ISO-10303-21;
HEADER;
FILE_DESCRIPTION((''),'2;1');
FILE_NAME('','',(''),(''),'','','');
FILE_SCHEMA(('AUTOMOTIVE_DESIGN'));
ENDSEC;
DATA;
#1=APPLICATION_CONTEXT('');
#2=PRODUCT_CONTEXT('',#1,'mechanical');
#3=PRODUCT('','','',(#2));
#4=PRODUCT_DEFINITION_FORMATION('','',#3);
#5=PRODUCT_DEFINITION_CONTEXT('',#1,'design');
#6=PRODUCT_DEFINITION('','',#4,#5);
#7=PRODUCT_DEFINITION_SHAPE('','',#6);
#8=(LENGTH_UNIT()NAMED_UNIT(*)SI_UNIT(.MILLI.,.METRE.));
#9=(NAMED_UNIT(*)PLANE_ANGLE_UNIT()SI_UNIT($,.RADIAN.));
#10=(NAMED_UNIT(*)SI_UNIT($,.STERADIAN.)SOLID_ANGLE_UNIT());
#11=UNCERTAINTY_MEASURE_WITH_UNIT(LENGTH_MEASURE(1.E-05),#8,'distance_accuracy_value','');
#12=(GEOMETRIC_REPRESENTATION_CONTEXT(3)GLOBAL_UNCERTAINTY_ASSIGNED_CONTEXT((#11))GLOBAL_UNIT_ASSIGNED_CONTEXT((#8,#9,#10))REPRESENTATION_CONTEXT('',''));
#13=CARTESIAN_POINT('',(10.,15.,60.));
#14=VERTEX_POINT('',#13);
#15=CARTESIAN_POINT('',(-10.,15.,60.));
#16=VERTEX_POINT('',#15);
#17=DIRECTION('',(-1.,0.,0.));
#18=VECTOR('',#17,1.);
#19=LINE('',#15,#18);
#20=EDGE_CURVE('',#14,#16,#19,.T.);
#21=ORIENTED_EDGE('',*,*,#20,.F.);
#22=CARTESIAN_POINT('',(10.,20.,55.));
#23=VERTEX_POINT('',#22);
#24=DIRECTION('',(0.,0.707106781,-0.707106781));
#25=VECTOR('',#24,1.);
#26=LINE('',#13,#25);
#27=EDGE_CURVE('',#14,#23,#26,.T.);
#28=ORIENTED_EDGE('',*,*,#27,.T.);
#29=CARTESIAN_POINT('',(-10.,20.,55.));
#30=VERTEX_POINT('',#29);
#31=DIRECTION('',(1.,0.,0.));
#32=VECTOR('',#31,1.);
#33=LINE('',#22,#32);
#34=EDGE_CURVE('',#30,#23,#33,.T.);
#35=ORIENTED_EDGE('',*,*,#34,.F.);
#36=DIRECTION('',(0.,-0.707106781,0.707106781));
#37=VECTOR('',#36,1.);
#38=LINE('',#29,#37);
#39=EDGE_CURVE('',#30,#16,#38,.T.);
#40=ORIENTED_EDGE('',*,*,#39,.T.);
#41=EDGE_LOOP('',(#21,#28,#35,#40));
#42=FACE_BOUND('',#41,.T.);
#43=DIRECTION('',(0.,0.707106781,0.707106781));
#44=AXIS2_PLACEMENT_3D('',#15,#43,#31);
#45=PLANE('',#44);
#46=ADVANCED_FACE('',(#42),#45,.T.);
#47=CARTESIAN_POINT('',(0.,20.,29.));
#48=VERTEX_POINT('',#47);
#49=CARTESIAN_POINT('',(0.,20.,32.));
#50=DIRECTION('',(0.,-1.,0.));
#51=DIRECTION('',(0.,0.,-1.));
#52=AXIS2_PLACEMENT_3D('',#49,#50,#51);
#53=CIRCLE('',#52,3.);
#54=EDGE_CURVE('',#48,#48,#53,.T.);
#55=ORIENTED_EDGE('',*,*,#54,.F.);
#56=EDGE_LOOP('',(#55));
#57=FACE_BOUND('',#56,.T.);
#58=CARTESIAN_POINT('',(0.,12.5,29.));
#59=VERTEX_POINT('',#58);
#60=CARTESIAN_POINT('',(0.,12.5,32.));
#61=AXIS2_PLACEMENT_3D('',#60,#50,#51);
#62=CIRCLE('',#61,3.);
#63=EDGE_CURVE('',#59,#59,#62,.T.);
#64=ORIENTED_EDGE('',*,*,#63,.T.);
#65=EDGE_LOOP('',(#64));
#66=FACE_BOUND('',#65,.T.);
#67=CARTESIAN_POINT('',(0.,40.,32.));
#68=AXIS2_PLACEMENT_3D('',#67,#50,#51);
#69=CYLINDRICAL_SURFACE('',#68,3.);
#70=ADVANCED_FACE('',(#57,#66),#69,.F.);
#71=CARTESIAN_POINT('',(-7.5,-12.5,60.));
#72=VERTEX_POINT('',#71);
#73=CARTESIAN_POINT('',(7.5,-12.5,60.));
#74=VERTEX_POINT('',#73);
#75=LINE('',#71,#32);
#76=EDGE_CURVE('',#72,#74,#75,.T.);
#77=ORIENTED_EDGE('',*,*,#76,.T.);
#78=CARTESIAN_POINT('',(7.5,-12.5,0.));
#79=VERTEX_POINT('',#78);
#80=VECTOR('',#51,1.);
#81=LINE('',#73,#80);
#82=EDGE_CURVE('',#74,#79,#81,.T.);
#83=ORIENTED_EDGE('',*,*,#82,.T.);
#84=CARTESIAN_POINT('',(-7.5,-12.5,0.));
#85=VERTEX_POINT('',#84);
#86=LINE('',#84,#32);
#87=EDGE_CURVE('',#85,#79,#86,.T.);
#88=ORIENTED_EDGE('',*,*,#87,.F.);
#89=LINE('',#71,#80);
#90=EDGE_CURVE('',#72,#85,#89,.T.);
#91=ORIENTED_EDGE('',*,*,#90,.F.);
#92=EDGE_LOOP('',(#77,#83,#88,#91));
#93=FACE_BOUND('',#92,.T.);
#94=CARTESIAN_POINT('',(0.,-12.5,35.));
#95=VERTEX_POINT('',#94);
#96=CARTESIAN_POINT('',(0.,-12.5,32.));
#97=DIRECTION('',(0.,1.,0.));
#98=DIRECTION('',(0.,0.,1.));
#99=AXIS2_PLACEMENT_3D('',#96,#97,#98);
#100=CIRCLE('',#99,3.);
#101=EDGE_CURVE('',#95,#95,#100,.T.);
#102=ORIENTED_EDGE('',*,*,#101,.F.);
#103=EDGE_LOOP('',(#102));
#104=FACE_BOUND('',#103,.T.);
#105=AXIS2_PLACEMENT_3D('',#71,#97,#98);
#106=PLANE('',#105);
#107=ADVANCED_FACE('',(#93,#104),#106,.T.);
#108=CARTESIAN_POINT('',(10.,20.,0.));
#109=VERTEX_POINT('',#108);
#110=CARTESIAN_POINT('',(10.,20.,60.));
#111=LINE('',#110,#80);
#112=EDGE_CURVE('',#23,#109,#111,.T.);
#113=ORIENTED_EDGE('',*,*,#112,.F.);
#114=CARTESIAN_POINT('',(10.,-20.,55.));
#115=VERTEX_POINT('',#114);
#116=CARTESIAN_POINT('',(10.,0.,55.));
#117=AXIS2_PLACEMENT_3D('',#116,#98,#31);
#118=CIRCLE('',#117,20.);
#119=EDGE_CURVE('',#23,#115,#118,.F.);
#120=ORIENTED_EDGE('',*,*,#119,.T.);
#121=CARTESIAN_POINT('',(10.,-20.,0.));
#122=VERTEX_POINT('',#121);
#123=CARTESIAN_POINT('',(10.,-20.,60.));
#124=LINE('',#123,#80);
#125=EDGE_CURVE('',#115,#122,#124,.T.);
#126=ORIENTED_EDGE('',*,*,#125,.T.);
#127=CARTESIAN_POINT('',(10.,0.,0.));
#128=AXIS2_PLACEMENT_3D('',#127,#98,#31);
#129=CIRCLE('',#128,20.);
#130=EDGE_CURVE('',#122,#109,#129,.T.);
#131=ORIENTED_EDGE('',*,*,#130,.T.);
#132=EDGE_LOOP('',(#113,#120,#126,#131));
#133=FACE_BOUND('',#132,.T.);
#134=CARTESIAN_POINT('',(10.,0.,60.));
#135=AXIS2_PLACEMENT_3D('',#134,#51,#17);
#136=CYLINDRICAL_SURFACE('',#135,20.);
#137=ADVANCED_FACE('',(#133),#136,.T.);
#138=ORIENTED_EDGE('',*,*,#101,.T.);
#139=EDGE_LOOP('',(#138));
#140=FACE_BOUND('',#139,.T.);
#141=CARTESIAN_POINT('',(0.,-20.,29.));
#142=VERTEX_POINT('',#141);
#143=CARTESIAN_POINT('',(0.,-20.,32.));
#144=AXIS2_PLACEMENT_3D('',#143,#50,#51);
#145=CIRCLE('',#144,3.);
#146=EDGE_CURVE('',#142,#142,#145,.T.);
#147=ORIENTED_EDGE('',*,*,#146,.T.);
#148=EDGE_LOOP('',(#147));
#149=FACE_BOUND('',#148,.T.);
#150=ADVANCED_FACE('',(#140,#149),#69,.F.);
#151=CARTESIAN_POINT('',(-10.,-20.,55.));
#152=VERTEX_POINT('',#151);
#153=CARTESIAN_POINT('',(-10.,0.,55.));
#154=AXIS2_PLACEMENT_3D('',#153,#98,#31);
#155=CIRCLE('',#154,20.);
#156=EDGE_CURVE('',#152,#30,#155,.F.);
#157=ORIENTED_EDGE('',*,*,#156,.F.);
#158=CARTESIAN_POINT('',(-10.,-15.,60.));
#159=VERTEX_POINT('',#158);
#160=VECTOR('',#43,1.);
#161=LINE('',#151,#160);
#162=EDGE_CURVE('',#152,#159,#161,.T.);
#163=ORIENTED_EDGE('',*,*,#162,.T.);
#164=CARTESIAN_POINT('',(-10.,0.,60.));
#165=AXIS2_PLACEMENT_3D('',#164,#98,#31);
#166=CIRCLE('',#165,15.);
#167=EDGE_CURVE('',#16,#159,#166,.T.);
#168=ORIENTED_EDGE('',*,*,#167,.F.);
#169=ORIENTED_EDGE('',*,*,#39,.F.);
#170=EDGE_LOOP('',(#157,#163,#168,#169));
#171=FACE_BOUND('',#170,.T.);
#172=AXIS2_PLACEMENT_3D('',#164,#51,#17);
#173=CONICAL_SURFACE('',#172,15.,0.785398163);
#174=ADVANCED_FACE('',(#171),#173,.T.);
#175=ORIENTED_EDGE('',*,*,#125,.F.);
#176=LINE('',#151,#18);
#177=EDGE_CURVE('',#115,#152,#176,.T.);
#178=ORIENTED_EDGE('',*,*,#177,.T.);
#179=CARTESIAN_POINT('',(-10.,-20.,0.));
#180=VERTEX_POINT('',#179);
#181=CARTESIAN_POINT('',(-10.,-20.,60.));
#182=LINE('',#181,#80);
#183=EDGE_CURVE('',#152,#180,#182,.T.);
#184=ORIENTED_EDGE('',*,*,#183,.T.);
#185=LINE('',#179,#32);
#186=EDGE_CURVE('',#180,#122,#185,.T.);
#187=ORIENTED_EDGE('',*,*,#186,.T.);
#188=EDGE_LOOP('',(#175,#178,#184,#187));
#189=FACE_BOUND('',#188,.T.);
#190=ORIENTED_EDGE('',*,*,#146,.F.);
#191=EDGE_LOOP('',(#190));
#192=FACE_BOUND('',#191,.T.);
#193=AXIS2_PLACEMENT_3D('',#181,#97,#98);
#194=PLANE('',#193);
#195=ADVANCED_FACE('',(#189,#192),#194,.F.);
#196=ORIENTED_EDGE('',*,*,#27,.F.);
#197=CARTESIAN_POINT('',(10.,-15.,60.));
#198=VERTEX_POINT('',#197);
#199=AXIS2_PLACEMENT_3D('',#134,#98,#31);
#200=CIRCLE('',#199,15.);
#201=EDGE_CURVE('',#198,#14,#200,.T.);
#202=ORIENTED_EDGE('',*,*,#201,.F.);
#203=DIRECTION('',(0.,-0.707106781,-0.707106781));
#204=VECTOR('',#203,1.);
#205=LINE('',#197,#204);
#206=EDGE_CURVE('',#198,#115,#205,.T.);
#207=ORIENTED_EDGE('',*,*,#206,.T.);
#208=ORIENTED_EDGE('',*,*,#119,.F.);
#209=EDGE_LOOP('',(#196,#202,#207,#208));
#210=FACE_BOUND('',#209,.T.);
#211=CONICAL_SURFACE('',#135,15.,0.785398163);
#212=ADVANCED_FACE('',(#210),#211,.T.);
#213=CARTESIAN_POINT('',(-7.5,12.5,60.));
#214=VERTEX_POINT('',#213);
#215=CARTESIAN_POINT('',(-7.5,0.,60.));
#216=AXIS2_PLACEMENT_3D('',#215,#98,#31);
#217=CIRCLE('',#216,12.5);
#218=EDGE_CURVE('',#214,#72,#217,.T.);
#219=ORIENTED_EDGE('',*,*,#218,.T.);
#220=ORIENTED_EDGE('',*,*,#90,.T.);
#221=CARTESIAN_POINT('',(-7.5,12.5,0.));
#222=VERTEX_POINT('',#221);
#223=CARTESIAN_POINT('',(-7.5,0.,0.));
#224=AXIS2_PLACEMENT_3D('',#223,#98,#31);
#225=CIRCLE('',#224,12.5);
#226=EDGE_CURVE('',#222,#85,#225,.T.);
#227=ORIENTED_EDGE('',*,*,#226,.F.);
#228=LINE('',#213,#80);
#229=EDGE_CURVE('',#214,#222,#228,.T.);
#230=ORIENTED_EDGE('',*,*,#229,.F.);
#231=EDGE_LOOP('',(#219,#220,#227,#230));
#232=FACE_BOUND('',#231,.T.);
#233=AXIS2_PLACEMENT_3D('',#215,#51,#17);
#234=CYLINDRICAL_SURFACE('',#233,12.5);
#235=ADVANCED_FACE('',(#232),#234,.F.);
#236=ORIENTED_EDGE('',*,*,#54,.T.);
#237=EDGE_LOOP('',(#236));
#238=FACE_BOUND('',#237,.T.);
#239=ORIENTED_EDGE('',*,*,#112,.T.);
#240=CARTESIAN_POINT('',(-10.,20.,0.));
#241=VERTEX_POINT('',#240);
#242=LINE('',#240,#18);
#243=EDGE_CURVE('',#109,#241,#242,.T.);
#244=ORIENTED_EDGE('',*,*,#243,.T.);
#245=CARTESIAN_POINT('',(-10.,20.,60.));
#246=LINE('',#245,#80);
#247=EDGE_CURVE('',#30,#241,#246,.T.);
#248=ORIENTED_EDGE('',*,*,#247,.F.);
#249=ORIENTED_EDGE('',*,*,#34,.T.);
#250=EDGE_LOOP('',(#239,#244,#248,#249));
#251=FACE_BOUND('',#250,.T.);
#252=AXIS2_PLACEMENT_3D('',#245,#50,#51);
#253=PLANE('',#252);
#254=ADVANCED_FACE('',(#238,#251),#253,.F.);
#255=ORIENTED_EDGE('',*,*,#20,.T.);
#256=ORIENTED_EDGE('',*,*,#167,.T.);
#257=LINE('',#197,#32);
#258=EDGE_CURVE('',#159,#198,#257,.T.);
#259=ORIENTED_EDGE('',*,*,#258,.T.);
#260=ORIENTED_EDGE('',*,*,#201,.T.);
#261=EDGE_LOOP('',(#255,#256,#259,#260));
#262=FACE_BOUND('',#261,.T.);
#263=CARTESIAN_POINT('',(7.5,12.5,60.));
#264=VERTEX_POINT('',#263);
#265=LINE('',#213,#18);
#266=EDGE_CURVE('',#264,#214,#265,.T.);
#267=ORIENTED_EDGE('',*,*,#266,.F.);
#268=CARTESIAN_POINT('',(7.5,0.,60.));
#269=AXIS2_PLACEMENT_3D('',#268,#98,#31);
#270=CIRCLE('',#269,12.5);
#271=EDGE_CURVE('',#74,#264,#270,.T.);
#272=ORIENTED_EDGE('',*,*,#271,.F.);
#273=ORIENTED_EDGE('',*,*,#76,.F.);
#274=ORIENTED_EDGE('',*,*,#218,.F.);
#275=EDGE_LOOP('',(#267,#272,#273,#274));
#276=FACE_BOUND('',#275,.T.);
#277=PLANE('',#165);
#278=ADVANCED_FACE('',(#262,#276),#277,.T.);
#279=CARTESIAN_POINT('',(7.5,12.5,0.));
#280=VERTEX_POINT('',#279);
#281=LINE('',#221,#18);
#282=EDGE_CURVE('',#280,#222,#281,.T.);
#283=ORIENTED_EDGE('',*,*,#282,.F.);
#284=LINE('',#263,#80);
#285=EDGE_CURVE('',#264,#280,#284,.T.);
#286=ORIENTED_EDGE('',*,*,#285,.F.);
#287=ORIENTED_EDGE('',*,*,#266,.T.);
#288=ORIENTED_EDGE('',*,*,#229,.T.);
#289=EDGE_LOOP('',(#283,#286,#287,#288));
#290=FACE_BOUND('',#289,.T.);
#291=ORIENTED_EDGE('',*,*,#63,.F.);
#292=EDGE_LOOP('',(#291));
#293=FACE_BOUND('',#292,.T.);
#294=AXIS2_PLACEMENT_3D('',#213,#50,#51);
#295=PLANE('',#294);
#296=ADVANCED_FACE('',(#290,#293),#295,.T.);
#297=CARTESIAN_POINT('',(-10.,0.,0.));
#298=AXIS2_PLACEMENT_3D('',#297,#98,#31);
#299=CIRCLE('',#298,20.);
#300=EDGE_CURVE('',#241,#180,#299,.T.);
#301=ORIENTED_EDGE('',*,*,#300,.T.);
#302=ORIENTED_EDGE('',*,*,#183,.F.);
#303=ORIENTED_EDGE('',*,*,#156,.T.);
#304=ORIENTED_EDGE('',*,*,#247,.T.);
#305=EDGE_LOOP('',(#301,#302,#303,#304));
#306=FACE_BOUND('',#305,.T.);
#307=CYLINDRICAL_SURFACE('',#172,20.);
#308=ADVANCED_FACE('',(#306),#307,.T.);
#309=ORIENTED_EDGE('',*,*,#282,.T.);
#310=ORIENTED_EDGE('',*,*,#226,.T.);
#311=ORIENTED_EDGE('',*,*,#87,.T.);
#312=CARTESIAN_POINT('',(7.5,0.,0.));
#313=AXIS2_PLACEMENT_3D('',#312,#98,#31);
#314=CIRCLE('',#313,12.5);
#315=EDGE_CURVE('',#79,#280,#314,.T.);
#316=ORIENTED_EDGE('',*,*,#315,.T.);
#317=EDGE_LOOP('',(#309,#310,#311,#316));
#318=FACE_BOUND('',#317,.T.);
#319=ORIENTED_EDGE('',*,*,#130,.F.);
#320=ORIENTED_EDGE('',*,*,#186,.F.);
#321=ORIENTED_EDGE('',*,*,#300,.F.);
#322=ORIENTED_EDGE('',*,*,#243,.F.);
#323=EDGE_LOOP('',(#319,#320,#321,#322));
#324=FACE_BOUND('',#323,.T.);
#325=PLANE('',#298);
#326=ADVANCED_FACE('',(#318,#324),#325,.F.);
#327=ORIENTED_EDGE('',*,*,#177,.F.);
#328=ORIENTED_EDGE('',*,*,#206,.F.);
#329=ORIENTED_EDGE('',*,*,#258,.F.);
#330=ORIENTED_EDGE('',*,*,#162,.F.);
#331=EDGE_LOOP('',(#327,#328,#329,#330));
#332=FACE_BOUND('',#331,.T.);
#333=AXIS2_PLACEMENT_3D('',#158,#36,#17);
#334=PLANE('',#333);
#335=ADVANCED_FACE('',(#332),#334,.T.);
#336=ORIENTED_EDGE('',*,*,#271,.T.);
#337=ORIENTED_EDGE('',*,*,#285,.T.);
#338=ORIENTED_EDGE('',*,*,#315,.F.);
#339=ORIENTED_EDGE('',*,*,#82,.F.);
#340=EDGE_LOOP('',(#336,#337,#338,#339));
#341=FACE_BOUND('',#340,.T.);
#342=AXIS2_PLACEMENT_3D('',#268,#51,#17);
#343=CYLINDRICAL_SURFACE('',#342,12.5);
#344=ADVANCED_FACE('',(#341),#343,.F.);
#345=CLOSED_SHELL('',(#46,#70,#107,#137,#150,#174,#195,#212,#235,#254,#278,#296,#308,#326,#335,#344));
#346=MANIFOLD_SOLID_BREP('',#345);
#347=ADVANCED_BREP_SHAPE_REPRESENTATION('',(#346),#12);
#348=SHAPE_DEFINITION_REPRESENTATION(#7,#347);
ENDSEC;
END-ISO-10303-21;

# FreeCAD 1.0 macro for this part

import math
import FreeCAD as App
import Part
import Sketcher
Q = App.Units.Quantity


def edges_at(feature, points):
    """Names of the edges that pass closest to the given points."""
    edges = feature.Shape.Edges
    near = lambda p: min(range(len(edges)), key=lambda i: edges[i].distToShape(Part.Vertex(*p))[0])
    return sorted({f"Edge{near(p) + 1}" for p in points})

doc = App.newDocument("Part")
body = doc.addObject("PartDesign::Body", "Body")

# Sketch on XY plane
sketch1 = doc.addObject("Sketcher::SketchObject", "Sketch")
body.addObject(sketch1)
sketch1.AttachmentSupport = (doc.XY_Plane, [""])
sketch1.MapMode = "FlatFace"
sketch1.addGeometry(Part.LineSegment(App.Vector(10, 20, 0), App.Vector(-10, 20, 0)), False)
sketch1.addGeometry(Part.ArcOfCircle(Part.Circle(App.Vector(-10, 0, 0), App.Vector(0, 0, 1), 20), math.radians(90), math.radians(270)), False)
sketch1.addGeometry(Part.LineSegment(App.Vector(-10, -20, 0), App.Vector(10, -20, 0)), False)
sketch1.addGeometry(Part.ArcOfCircle(Part.Circle(App.Vector(10, 0, 0), App.Vector(0, 0, 1), 20), math.radians(-90), math.radians(90)), False)
sketch1.addGeometry(Part.LineSegment(App.Vector(-8, 12, 0), App.Vector(8, 12, 0)), False)
sketch1.addGeometry(Part.ArcOfCircle(Part.Circle(App.Vector(8, 0, 0), App.Vector(0, 0, 1), 12), math.radians(-90), math.radians(90)), False)
sketch1.addGeometry(Part.LineSegment(App.Vector(8, -12, 0), App.Vector(-8, -12, 0)), False)
sketch1.addGeometry(Part.ArcOfCircle(Part.Circle(App.Vector(-8, 0, 0), App.Vector(0, 0, 1), 12), math.radians(90), math.radians(270)), False)
sketch1.addConstraint(Sketcher.Constraint("Tangent", 0, 2, 1, 1))
sketch1.addConstraint(Sketcher.Constraint("Tangent", 1, 2, 2, 1))
sketch1.addConstraint(Sketcher.Constraint("Tangent", 2, 2, 3, 1))
sketch1.addConstraint(Sketcher.Constraint("Tangent", 3, 2, 0, 1))
sketch1.addConstraint(Sketcher.Constraint("Tangent", 4, 2, 5, 2))
sketch1.addConstraint(Sketcher.Constraint("Tangent", 5, 1, 6, 1))
sketch1.addConstraint(Sketcher.Constraint("Tangent", 6, 2, 7, 2))
sketch1.addConstraint(Sketcher.Constraint("Tangent", 7, 1, 4, 1))
sketch1.addConstraint(Sketcher.Constraint("Horizontal", 0))
sketch1.addConstraint(Sketcher.Constraint("Horizontal", 2))
sketch1.addConstraint(Sketcher.Constraint("Horizontal", 4))
sketch1.addConstraint(Sketcher.Constraint("Horizontal", 6))
sketch1.addConstraint(Sketcher.Constraint("Symmetric", 1, 3, 3, 3, -1, 1))
sketch1.addConstraint(Sketcher.Constraint("Symmetric", 5, 3, 7, 3, -1, 1))
sketch1.addConstraint(Sketcher.Constraint("Radius", 1, Q("20 mm")))
sketch1.addConstraint(Sketcher.Constraint("Radius", 5, Q("12.5 mm")))
sketch1.addConstraint(Sketcher.Constraint("DistanceX", 0, 2, 0, 1, Q("20 mm")))
sketch1.addConstraint(Sketcher.Constraint("DistanceX", 4, 1, 4, 2, Q("15 mm")))
pad1 = doc.addObject("PartDesign::Pad", "Pad")
body.addObject(pad1)
pad1.Profile = sketch1
pad1.Length = 60

# Sketch on XZ plane
sketch2 = doc.addObject("Sketcher::SketchObject", "Sketch001")
body.addObject(sketch2)
sketch2.AttachmentSupport = (doc.XZ_Plane, [""])
sketch2.MapMode = "FlatFace"
sketch2.AttachmentOffset = App.Placement(App.Vector(0, 0, 20), App.Rotation())
sketch2.addGeometry(Part.Circle(App.Vector(0, 32, 0), App.Vector(0, 0, 1), 3), False)
sketch2.addConstraint(Sketcher.Constraint("PointOnObject", 0, 3, -2))
sketch2.addConstraint(Sketcher.Constraint("Diameter", 0, Q("6 mm")))
sketch2.addConstraint(Sketcher.Constraint("DistanceY", -1, 1, 0, 3, Q("32 mm")))
pocket1 = doc.addObject("PartDesign::Pocket", "Pocket")
body.addObject(pocket1)
pocket1.Profile = sketch2
pocket1.Length = 60
doc.recompute()

chamfer = doc.addObject("PartDesign::Chamfer", "Chamfer")
body.addObject(chamfer)
chamfer.Base = (pocket1, edges_at(pocket1, [
    (30, 0, 60),
    (0, 20, 60),
    (-30, 0, 60),
    (0, -20, 60),
]))
chamfer.Size = 5

doc.recompute()
